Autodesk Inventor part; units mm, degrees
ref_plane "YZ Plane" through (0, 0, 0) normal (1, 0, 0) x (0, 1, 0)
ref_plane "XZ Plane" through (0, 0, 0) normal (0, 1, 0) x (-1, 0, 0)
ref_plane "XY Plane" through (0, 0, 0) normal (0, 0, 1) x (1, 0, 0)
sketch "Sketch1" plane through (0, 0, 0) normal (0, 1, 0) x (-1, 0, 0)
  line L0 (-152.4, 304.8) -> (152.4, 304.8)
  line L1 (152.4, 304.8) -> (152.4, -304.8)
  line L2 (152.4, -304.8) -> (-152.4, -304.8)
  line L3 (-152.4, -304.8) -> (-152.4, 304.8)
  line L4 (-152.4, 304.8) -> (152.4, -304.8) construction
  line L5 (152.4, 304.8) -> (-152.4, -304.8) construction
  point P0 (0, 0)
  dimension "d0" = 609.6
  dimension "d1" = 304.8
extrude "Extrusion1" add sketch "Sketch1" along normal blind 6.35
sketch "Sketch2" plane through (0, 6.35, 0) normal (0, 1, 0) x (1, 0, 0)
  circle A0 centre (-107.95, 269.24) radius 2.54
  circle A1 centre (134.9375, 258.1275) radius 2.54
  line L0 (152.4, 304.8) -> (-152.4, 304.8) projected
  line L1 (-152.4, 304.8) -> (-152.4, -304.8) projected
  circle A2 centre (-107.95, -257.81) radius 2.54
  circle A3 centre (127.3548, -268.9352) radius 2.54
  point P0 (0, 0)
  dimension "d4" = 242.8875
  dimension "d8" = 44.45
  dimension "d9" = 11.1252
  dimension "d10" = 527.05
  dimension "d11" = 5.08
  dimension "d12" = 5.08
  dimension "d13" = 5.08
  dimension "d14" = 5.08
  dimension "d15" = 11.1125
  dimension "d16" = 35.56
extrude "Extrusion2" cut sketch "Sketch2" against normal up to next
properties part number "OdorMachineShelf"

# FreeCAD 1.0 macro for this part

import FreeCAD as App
import Part
import Sketcher

V = App.Vector
Q = App.Units.Quantity

doc = App.newDocument("Part")
body = doc.addObject("PartDesign::Body", "Body")

sketch1 = body.newObject("Sketcher::SketchObject", "Sketch")
sketch1.AttachmentSupport = (doc.getObject("XZ_Plane"), [""])
sketch1.MapMode = "FlatFace"
sketch1.addGeometry(Part.LineSegment(V(-152.4, 304.8, 0), V(152.4, 304.8, 0)), False)
sketch1.addGeometry(Part.LineSegment(V(152.4, 304.8, 0), V(152.4, -304.8, 0)), False)
sketch1.addGeometry(Part.LineSegment(V(152.4, -304.8, 0), V(-152.4, -304.8, 0)), False)
sketch1.addGeometry(Part.LineSegment(V(-152.4, -304.8, 0), V(-152.4, 304.8, 0)), False)
sketch1.addConstraint(Sketcher.Constraint("Coincident", 0, 2, 1, 1))
sketch1.addConstraint(Sketcher.Constraint("Coincident", 1, 2, 2, 1))
sketch1.addConstraint(Sketcher.Constraint("Coincident", 2, 2, 3, 1))
sketch1.addConstraint(Sketcher.Constraint("Coincident", 3, 2, 0, 1))
sketch1.addConstraint(Sketcher.Constraint("Horizontal", 0))
sketch1.addConstraint(Sketcher.Constraint("Vertical", 1))
sketch1.addConstraint(Sketcher.Constraint("Horizontal", 2))
sketch1.addConstraint(Sketcher.Constraint("Vertical", 3))
sketch1.addConstraint(Sketcher.Constraint("Symmetric", 0, 2, 2, 2, -1, 1))
sketch1.addConstraint(Sketcher.Constraint("DistanceX", 0, 1, 0, 2, Q("12 in")))
sketch1.addConstraint(Sketcher.Constraint("DistanceY", 1, 2, 1, 1, Q("24 in")))
pad1 = body.newObject("PartDesign::Pad", "Pad")
pad1.Profile = sketch1
pad1.Length = Q("0.25 in")
pad1.Reversed = True

sketch2 = body.newObject("Sketcher::SketchObject", "Sketch001")
sketch2.AttachmentSupport = (doc.getObject("XZ_Plane"), [""])
sketch2.MapMode = "FlatFace"
sketch2.AttachmentOffset = App.Placement(V(0, 0, -0.25 * 25.4), App.Rotation())
sketch2.addGeometry(Part.Circle(V(-107.95, -269.24, 0), V(0, 0, 1), 2.54), False)
sketch2.addGeometry(Part.Circle(V(134.9375, -258.1275, 0), V(0, 0, 1), 2.54), False)
sketch2.addGeometry(Part.Circle(V(-107.95, 257.81, 0), V(0, 0, 1), 2.54), False)
sketch2.addGeometry(Part.Circle(V(127.3548, 268.9352, 0), V(0, 0, 1), 2.54), False)
sketch2.addConstraint(Sketcher.Constraint("Equal", 0, 1))
sketch2.addConstraint(Sketcher.Constraint("Equal", 1, 2))
sketch2.addConstraint(Sketcher.Constraint("Equal", 2, 3))
sketch2.addConstraint(Sketcher.Constraint("Vertical", 0, 3, 2, 3))
sketch2.addConstraint(Sketcher.Constraint("Diameter", 0, Q("0.2 in")))
sketch2.addConstraint(Sketcher.Constraint("DistanceY", 0, 3, 2, 3, Q("20.75 in")))
sketch2.addConstraint(Sketcher.Constraint("DistanceX", 0, 3, 1, 3, Q("9.5625 in")))
sketch2.addConstraint(Sketcher.Constraint("DistanceY", 0, 3, 1, 3, Q("0.4375 in")))
sketch2.addConstraint(Sketcher.Constraint("DistanceY", 2, 3, 3, 3, Q("0.438 in")))
sketch2.addConstraint(Sketcher.Constraint("DistanceY", 0, 3, -1, 1, Q("10.6 in")))
sketch2.addConstraint(Sketcher.Constraint("DistanceX", 0, 3, -1, 1, Q("4.25 in")))
sketch2.addConstraint(Sketcher.Constraint("DistanceX", -1, 1, 3, 3, 127.3548))
pocket1 = body.newObject("PartDesign::Pocket", "Pocket")
pocket1.Profile = sketch2
pocket1.Length = Q("0.25 in")
pocket1.Reversed = True

doc.recompute()
